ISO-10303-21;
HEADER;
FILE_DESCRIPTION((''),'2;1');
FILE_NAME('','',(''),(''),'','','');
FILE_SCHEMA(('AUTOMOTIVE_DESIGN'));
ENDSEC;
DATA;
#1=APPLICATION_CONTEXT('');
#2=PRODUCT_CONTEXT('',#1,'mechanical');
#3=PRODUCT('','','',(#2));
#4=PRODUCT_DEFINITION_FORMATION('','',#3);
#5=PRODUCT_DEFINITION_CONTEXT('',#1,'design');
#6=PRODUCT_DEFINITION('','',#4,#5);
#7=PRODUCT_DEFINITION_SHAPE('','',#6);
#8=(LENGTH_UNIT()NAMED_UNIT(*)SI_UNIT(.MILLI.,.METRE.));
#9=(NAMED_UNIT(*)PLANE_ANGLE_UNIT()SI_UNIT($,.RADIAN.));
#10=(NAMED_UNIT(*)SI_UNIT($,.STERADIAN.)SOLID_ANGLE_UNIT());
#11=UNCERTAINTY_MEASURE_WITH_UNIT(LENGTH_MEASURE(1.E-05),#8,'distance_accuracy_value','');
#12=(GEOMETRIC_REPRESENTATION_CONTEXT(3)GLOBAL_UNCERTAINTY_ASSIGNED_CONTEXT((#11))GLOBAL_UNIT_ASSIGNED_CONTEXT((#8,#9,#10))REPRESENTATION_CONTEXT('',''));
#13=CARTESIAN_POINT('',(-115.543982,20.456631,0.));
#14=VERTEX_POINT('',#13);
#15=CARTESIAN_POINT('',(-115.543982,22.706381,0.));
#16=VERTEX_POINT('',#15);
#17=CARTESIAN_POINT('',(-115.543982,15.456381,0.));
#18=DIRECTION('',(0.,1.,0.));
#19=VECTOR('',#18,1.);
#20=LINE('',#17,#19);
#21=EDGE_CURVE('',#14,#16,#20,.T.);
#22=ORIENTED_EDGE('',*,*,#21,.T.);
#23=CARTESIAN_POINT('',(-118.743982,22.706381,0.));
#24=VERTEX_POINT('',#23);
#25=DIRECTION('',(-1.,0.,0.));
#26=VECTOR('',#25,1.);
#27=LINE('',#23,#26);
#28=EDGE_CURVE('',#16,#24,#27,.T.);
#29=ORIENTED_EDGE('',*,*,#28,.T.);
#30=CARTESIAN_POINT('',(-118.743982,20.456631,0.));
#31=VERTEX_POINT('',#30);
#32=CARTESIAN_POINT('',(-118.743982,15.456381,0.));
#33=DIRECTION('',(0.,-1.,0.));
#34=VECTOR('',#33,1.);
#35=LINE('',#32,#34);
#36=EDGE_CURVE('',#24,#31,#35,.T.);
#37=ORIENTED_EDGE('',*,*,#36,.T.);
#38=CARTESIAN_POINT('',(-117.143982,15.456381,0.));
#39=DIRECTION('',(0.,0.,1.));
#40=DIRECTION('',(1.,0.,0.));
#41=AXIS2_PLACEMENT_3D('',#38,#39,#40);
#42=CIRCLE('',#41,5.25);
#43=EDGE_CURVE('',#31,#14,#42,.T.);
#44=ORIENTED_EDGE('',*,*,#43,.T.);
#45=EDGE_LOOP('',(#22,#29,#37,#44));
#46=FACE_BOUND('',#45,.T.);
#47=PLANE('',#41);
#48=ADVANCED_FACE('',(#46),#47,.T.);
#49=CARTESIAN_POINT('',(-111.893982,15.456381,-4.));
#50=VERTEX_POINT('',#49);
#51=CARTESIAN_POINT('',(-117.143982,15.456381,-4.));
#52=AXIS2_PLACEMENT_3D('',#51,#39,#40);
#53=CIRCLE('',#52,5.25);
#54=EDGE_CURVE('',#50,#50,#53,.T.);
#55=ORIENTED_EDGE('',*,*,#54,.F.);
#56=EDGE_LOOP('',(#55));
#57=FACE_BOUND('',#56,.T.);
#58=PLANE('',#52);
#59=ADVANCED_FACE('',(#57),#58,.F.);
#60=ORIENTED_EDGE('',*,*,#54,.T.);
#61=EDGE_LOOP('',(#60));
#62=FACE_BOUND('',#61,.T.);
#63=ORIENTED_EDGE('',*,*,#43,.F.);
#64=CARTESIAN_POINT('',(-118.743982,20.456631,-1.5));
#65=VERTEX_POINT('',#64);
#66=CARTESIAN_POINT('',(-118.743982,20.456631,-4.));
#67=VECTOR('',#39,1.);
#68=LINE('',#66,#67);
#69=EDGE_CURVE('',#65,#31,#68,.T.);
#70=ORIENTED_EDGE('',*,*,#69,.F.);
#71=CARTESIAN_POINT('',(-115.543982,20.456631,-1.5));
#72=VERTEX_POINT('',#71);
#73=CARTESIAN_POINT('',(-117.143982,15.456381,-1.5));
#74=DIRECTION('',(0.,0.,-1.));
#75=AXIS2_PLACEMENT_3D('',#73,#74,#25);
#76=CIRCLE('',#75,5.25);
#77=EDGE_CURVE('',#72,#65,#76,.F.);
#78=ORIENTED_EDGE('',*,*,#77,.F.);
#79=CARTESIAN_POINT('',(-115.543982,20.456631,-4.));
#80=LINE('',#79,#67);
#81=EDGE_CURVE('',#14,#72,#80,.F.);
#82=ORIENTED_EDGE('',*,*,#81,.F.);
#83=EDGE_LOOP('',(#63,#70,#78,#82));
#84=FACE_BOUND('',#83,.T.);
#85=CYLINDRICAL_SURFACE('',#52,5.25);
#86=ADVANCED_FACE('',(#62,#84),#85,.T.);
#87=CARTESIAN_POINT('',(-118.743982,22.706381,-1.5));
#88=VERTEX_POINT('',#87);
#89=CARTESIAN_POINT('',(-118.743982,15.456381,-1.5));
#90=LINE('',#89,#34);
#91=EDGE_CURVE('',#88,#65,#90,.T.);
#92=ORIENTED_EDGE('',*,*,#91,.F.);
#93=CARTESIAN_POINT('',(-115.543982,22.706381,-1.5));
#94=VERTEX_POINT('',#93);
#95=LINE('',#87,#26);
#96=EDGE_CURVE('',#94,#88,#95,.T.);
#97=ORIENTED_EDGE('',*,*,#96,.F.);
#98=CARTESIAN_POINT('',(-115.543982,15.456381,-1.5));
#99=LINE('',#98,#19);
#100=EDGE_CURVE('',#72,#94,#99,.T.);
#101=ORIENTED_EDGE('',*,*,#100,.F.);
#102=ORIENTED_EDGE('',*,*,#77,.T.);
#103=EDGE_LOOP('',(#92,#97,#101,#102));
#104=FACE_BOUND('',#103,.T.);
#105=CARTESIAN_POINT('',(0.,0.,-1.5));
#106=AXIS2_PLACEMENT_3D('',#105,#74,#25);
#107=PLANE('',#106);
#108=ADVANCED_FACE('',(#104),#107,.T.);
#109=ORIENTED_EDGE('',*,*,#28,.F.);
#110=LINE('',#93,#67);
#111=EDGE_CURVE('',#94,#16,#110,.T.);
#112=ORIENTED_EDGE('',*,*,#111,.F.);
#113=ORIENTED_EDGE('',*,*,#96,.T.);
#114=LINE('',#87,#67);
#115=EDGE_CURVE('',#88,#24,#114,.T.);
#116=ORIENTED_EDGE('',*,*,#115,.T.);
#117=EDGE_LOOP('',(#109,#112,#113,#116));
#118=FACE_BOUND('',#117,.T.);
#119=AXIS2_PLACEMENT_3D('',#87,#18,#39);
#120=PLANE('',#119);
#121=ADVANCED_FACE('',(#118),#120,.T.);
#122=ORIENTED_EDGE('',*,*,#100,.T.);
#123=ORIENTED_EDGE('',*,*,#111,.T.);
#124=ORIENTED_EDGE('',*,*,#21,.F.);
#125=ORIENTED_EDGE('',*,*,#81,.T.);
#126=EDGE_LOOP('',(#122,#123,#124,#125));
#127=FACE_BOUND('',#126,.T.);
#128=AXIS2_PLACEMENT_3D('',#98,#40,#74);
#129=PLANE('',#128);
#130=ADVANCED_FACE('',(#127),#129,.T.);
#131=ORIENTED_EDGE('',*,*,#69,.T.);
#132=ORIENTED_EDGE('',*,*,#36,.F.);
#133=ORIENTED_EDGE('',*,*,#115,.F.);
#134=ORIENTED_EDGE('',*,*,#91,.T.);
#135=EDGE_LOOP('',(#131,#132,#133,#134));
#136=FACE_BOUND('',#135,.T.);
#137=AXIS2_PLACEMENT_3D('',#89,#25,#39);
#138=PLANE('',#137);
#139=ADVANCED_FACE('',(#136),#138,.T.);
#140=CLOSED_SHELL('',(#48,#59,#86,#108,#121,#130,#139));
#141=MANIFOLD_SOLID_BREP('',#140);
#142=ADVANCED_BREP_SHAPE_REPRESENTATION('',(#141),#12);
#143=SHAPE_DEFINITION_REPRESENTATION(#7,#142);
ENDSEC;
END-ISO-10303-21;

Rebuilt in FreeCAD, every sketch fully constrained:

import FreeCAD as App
import Part
import Sketcher

V = App.Vector
Q = App.Units.Quantity

doc = App.newDocument("Part")
body = doc.addObject("PartDesign::Body", "Body")

sketch1 = body.newObject("Sketcher::SketchObject", "Sketch")
sketch1.AttachmentSupport = (doc.getObject("XY_Plane"), [""])
sketch1.MapMode = "FlatFace"
sketch1.addGeometry(Part.Circle(V(-117, 15, 0), V(0, 0, 1), 5), False)
sketch1.addConstraint([
    Sketcher.Constraint("Diameter", 0, Q("10.5 mm")),
    Sketcher.Constraint("DistanceY", -1, 1, 0, 3, Q("15.456381 mm")),
    Sketcher.Constraint("DistanceX", 0, 3, -1, 1, Q("117.143982 mm")),
])
pad1 = body.newObject("PartDesign::Pad", "Pad")
pad1.Profile = sketch1
pad1.Length = 4
pad1.Reversed = True

sketch2 = body.newObject("Sketcher::SketchObject", "Sketch001")
sketch2.AttachmentSupport = (doc.getObject("XY_Plane"), [""])
sketch2.MapMode = "FlatFace"
sketch2.addGeometry([
    Part.LineSegment(V(-118.7, 22.7, 0), V(-118.7, 15.5, 0)),
    Part.LineSegment(V(-118.7, 15.5, 0), V(-115.5, 15.5, 0)),
    Part.LineSegment(V(-115.5, 15.5, 0), V(-115.5, 22.7, 0)),
    Part.LineSegment(V(-115.5, 22.7, 0), V(-118.7, 22.7, 0)),
], False)
sketch2.addConstraint([
    Sketcher.Constraint("Coincident", 0, 2, 1, 1),
    Sketcher.Constraint("Coincident", 1, 2, 2, 1),
    Sketcher.Constraint("Coincident", 2, 2, 3, 1),
    Sketcher.Constraint("Coincident", 3, 2, 0, 1),
    Sketcher.Constraint("Vertical", 0),
    Sketcher.Constraint("Horizontal", 1),
    Sketcher.Constraint("Vertical", 2),
    Sketcher.Constraint("Horizontal", 3),
    Sketcher.Constraint("DistanceX", 1, 1, 1, 2, Q("3.2 mm")),
    Sketcher.Constraint("DistanceY", 0, 2, 0, 1, Q("7.25 mm")),
    Sketcher.Constraint("DistanceY", -1, 1, 0, 2, Q("15.456381 mm")),
    Sketcher.Constraint("DistanceX", 0, 2, -1, 1, Q("118.743982 mm")),
])
pad2 = body.newObject("PartDesign::Pad", "Pad001")
pad2.Profile = sketch2
pad2.Length = 1.5
pad2.Reversed = True

doc.recompute()
